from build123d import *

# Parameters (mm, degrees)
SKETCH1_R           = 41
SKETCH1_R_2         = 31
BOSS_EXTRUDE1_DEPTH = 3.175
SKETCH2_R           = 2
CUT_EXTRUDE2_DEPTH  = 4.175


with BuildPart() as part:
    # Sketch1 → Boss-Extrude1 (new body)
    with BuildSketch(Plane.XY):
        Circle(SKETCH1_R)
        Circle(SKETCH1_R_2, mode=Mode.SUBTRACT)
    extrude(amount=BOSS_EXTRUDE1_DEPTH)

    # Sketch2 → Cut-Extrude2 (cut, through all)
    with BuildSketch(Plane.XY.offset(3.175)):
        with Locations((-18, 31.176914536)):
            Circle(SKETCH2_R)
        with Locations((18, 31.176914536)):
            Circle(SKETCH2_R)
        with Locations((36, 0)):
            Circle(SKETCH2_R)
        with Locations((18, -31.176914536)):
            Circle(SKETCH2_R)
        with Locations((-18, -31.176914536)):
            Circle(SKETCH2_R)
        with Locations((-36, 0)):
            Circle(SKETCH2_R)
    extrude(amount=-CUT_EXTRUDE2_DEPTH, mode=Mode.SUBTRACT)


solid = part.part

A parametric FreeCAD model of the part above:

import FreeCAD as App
import Part
import Sketcher

doc = App.newDocument("Part")
params = doc.addObject("Spreadsheet::Sheet", "Params")
for row, (alias, value) in enumerate([
    ("sketch1_diameter", "82 mm"),
    ("sketch1_diameter2", "62 mm"),
    ("pad1_length", "3.175 mm"),
    ("sketch2_diameter", "4 mm"),
], start=1):
    params.set(f"A{row}", alias)
    params.set(f"B{row}", "=" + value)
    params.setAlias(f"B{row}", alias)

body = doc.addObject("PartDesign::Body", "Body")

# Sketch on XY plane
sketch1 = body.newObject("Sketcher::SketchObject", "Sketch")
sketch1.AttachmentSupport = (doc.getObject("XY_Plane"), [""])
sketch1.MapMode = "FlatFace"
sketch1.addGeometry([
    Part.Circle(App.Vector(0, 0, 0), App.Vector(0, 0, 1), 41),
    Part.Circle(App.Vector(0, 0, 0), App.Vector(0, 0, 1), 31),
], False)
sketch1.addConstraint([
    Sketcher.Constraint("Coincident", 0, 3, -1, 1),
    Sketcher.Constraint("Coincident", 1, 3, -1, 1),
    Sketcher.Constraint("Diameter", 0, 82.0),
    Sketcher.Constraint("Diameter", 1, 62.0),
])
sketch1.setExpression("Constraints[2]", "Params.sketch1_diameter")
sketch1.setExpression("Constraints[3]", "Params.sketch1_diameter2")
pad1 = body.newObject("PartDesign::Pad", "Pad")
pad1.Profile = sketch1
pad1.setExpression("Length", "Params.pad1_length")

# Sketch on XY plane
sketch2 = body.newObject("Sketcher::SketchObject", "Sketch001")
sketch2.AttachmentSupport = (doc.getObject("XY_Plane"), [""])
sketch2.MapMode = "FlatFace"
sketch2.AttachmentOffset = App.Placement(App.Vector(0, 0, 3.175), App.Rotation())
sketch2.addGeometry([
    Part.Circle(App.Vector(-18, 31.2, 0), App.Vector(0, 0, 1), 2),  # 0
    Part.Circle(App.Vector(18, 31.2, 0), App.Vector(0, 0, 1), 2),  # 1
    Part.Circle(App.Vector(36, 0, 0), App.Vector(0, 0, 1), 2),  # 2
    Part.Circle(App.Vector(18, -31.2, 0), App.Vector(0, 0, 1), 2),  # 3
    Part.Circle(App.Vector(-18, -31.2, 0), App.Vector(0, 0, 1), 2),  # 4
    Part.Circle(App.Vector(-36, 0, 0), App.Vector(0, 0, 1), 2),  # 5
], False)
sketch2.addConstraint([
    Sketcher.Constraint("Equal", 0, 1),
    Sketcher.Constraint("Equal", 1, 2),
    Sketcher.Constraint("Equal", 2, 3),
    Sketcher.Constraint("Equal", 3, 4),
    Sketcher.Constraint("Equal", 4, 5),
    Sketcher.Constraint("Symmetric", 0, 3, 3, 3, -1, 1),
    Sketcher.Constraint("Symmetric", 1, 3, 4, 3, -1, 1),
    Sketcher.Constraint("Symmetric", 2, 3, 5, 3, -1, 1),
    Sketcher.Constraint("Symmetric", 0, 3, 1, 3, -2),
    Sketcher.Constraint("PointOnObject", 2, 3, -1),
    Sketcher.Constraint("Diameter", 0, 4.0),
    Sketcher.Constraint("DistanceX", 0, 3, -1, 1, 18.0),
    Sketcher.Constraint("DistanceX", -1, 1, 2, 3, 36.0),
    Sketcher.Constraint("DistanceY", 3, 3, 1, 3, 62.353829),
])
sketch2.setExpression("Constraints[10]", "Params.sketch2_diameter")
pocket1 = body.newObject("PartDesign::Pocket", "Pocket")
pocket1.Profile = sketch2
pocket1.Type = "ThroughAll"

doc.recompute()
